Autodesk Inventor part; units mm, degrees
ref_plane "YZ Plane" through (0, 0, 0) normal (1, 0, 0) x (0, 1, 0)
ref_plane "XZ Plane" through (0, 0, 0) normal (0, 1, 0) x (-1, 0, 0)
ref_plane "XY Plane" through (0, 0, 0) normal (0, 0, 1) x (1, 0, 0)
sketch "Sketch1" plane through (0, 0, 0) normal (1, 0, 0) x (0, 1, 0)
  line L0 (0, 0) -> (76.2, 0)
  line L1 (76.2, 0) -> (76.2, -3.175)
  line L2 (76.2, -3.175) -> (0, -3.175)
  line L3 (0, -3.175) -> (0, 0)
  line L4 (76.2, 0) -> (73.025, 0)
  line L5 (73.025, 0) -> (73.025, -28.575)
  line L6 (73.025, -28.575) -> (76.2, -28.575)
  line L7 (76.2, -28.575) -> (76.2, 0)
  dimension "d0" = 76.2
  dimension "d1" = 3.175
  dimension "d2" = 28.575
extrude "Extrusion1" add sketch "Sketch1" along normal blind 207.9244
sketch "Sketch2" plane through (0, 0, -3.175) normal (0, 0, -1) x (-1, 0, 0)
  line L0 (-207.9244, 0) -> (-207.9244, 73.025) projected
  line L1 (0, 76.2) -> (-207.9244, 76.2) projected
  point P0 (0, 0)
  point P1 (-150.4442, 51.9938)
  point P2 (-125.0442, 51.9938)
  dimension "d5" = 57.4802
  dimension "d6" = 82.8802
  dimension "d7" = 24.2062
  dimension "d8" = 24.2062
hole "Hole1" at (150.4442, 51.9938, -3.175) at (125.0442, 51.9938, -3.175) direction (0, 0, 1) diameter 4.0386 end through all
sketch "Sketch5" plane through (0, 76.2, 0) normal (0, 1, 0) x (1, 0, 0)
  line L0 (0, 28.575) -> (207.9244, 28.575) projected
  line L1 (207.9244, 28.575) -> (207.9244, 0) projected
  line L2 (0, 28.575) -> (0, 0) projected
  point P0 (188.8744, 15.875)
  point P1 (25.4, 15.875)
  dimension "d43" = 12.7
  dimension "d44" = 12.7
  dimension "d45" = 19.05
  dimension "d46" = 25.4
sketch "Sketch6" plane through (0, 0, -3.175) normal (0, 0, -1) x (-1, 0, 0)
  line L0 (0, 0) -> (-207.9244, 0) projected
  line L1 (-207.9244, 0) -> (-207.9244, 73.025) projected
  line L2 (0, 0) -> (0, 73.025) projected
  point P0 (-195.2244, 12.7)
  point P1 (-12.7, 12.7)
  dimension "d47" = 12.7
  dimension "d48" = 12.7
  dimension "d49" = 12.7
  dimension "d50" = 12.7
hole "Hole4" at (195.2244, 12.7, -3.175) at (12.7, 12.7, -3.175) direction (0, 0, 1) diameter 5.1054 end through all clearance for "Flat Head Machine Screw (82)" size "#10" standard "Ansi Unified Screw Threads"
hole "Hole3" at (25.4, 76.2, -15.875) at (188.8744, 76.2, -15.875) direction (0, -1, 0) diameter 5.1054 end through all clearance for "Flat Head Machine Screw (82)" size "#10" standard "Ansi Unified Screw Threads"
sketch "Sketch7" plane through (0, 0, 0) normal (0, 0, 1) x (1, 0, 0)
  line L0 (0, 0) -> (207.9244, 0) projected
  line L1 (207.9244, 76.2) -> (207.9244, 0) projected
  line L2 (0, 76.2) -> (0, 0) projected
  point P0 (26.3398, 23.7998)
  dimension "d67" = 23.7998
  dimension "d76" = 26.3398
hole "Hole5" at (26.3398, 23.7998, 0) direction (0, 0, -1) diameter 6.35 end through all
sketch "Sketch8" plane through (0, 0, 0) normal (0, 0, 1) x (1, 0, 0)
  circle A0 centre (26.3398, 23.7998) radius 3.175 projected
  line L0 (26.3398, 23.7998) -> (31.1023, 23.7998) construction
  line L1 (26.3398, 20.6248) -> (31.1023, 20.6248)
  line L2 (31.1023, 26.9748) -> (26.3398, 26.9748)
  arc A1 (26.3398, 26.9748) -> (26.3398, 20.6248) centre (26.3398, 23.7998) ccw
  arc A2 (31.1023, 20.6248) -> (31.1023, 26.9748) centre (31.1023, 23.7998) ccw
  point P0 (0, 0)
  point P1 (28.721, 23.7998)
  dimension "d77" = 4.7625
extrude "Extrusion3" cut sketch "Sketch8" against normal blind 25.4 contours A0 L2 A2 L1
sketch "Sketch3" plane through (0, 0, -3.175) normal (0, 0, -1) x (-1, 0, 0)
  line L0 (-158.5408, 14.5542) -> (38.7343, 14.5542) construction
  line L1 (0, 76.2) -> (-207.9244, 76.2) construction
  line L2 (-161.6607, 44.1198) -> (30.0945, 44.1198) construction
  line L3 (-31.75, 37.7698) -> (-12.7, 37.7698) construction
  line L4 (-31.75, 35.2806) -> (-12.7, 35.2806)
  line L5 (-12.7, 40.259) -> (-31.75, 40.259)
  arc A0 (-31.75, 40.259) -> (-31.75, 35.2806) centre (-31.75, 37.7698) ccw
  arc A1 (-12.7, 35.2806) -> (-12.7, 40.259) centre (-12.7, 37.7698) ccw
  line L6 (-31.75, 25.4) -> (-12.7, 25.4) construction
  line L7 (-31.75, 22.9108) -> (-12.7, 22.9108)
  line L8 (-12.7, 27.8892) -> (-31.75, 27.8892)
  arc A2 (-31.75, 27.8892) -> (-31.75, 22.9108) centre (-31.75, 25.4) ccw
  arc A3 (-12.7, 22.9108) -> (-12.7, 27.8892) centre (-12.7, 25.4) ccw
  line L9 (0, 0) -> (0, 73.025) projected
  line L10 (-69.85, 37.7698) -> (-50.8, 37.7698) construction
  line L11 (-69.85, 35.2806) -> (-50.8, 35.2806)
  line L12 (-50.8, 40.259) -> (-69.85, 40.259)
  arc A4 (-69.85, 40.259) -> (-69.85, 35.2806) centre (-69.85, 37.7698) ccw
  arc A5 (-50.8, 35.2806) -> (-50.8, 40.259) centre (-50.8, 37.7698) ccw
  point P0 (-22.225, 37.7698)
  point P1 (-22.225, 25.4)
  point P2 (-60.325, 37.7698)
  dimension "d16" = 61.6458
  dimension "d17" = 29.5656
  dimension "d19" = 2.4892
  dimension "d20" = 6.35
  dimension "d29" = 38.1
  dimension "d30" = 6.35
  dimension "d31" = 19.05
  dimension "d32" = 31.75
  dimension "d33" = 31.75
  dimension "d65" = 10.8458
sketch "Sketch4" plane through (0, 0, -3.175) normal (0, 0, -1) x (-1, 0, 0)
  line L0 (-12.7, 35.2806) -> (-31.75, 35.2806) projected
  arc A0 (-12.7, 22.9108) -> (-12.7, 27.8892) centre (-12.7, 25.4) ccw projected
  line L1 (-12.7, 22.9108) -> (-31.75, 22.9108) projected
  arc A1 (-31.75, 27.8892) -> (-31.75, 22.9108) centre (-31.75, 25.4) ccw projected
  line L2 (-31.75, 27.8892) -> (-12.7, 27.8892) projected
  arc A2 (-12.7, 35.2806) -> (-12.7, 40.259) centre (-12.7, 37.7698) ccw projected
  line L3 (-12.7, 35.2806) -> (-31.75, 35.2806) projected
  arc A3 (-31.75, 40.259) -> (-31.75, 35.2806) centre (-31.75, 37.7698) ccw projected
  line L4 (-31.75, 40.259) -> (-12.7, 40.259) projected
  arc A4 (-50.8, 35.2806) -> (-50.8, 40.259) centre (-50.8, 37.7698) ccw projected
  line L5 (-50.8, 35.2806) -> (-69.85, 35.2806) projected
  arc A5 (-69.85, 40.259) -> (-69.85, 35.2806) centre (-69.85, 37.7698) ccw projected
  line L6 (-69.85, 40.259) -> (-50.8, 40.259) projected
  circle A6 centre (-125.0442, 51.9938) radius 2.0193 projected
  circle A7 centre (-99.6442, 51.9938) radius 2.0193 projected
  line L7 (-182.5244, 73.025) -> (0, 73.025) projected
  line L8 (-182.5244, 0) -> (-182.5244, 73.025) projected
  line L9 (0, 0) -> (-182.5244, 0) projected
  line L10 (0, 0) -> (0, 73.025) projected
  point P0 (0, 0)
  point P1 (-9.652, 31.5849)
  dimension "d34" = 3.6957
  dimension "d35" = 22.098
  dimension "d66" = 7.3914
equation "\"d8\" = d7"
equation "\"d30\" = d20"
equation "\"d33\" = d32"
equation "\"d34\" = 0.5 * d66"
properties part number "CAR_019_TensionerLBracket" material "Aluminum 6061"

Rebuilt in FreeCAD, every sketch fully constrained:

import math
import FreeCAD as App
import Part
import Sketcher
Q = App.Units.Quantity


def add_polygon(sketch, points):
    """Adds a closed chain of lines whose ends are joined by coincident constraints."""
    first, n = sketch.GeometryCount, len(points)
    for a, b in zip(points, points[1:] + points[:1]):
        sketch.addGeometry(Part.LineSegment(App.Vector(*a, 0), App.Vector(*b, 0)), False)
    for i in range(n):
        sketch.addConstraint(Sketcher.Constraint("Coincident", first + i, 2, first + (i + 1) % n, 1))

doc = App.newDocument("Part")
params = doc.addObject("Spreadsheet::Sheet", "Params")
for row, (alias, value) in enumerate([
    ("sketch1_width", "3 in"),
    ("sketch1_width2", "0.125 in"),
    ("sketch1_height", "1 in"),
    ("pad1_length", "8.186 in"),
    ("sketch2_diameter", "0.159 in"),
    ("hole_diameter", "0.159 in"),
    ("sketch3_diameter", "0.201 in"),
    ("hole2_diameter", "0.201 in"),
    ("sketch4_diameter", "0.201 in"),
    ("hole3_diameter", "0.201 in"),
    ("sketch5_diameter", "0.25 in"),
    ("hole4_diameter", "0.25 in"),
    ("sketch6_width", "0.1875 in"),
    ("sketch6_radius", "0.125 in"),
    ("pocket1_length", "1 in"),
], start=1):
    params.set(f"A{row}", alias)
    params.set(f"B{row}", "=" + value)
    params.setAlias(f"B{row}", alias)

body = doc.addObject("PartDesign::Body", "Body")

sketch1 = body.newObject("Sketcher::SketchObject", "Sketch")
sketch1.AttachmentSupport = (doc.getObject("YZ_Plane"), [""])
sketch1.MapMode = "FlatFace"
add_polygon(sketch1, [(0, 0), (0, -3.2), (73, -3.2), (73, -28.6), (76.2, -28.6), (76.2, 0)])
sketch1.addConstraint(Sketcher.Constraint("Vertical", 0))
sketch1.addConstraint(Sketcher.Constraint("Horizontal", 1))
sketch1.addConstraint(Sketcher.Constraint("Vertical", 2))
sketch1.addConstraint(Sketcher.Constraint("Horizontal", 3))
sketch1.addConstraint(Sketcher.Constraint("Vertical", 4))
sketch1.addConstraint(Sketcher.Constraint("Horizontal", 5))
sketch1.addConstraint(Sketcher.Constraint("Coincident", 5, 2, -1, 1))
sketch1.addConstraint(Sketcher.Constraint("Equal", 3, 0))
sketch1.addConstraint(Sketcher.Constraint("DistanceX", 5, 2, 5, 1, Q("3 in")))
sketch1.addConstraint(Sketcher.Constraint("DistanceX", 3, 1, 3, 2, Q("0.125 in")))
sketch1.addConstraint(Sketcher.Constraint("DistanceY", 2, 2, 2, 1, Q("1 in")))
sketch1.setExpression("Constraints[14]", "Params.sketch1_width")
sketch1.setExpression("Constraints[15]", "Params.sketch1_width2")
sketch1.setExpression("Constraints[16]", "Params.sketch1_height")
pad1 = body.newObject("PartDesign::Pad", "Pad")
pad1.Profile = sketch1
pad1.setExpression("Length", "Params.pad1_length")

sketch2 = body.newObject("Sketcher::SketchObject", "Sketch001")
sketch2.AttachmentSupport = (doc.getObject("XY_Plane"), [""])
sketch2.MapMode = "FlatFace"
sketch2.AttachmentOffset = App.Placement(App.Vector(0, 0, -0.125 * 25.4), App.Rotation())
sketch2.addGeometry(Part.Circle(App.Vector(150.4, 52, 0), App.Vector(0, 0, 1), 2), False)
sketch2.addGeometry(Part.Circle(App.Vector(125, 52, 0), App.Vector(0, 0, 1), 2), False)
sketch2.addConstraint(Sketcher.Constraint("Equal", 0, 1))
sketch2.addConstraint(Sketcher.Constraint("Horizontal", 0, 3, 1, 3))
sketch2.addConstraint(Sketcher.Constraint("Diameter", 0, Q("0.159 in")))
sketch2.addConstraint(Sketcher.Constraint("DistanceX", 1, 3, 0, 3, Q("1 in")))
sketch2.addConstraint(Sketcher.Constraint("DistanceX", -1, 1, 0, 3, Q("5.923 in")))
sketch2.addConstraint(Sketcher.Constraint("DistanceY", -1, 1, 0, 3, Q("2.047 in")))
sketch2.setExpression("Constraints[2]", "Params.sketch2_diameter")
doc.recompute()
hole = body.newObject("PartDesign::Hole", "Hole")
hole.Profile = sketch2
hole.ThreadType = "None"
hole.setExpression("Diameter", "Params.hole_diameter")
hole.DepthType = "ThroughAll"
hole.Reversed = True

sketch3 = body.newObject("Sketcher::SketchObject", "Sketch002")
sketch3.AttachmentSupport = (doc.getObject("XY_Plane"), [""])
sketch3.MapMode = "FlatFace"
sketch3.AttachmentOffset = App.Placement(App.Vector(0, 0, -0.125 * 25.4), App.Rotation())
sketch3.addGeometry(Part.Circle(App.Vector(195.2, 12.7, 0), App.Vector(0, 0, 1), 2.6), False)
sketch3.addGeometry(Part.Circle(App.Vector(12.7, 12.7, 0), App.Vector(0, 0, 1), 2.6), False)
sketch3.addConstraint(Sketcher.Constraint("Equal", 0, 1))
sketch3.addConstraint(Sketcher.Constraint("Horizontal", 0, 3, 1, 3))
sketch3.addConstraint(Sketcher.Constraint("Diameter", 0, Q("0.201 in")))
sketch3.addConstraint(Sketcher.Constraint("DistanceY", -1, 1, 0, 3, Q("0.5 in")))
sketch3.addConstraint(Sketcher.Constraint("DistanceX", -1, 1, 1, 3, Q("0.5 in")))
sketch3.addConstraint(Sketcher.Constraint("DistanceX", -1, 1, 0, 3, Q("7.686 in")))
sketch3.setExpression("Constraints[2]", "Params.sketch3_diameter")
doc.recompute()
hole2 = body.newObject("PartDesign::Hole", "Hole001")
hole2.Profile = sketch3
hole2.ThreadType = "None"
hole2.setExpression("Diameter", "Params.hole2_diameter")
hole2.DepthType = "ThroughAll"
hole2.Reversed = True

sketch4 = body.newObject("Sketcher::SketchObject", "Sketch003")
sketch4.AttachmentSupport = (doc.getObject("XZ_Plane"), [""])
sketch4.MapMode = "FlatFace"
sketch4.AttachmentOffset = App.Placement(App.Vector(0, 0, -3 * 25.4), App.Rotation())
sketch4.addGeometry(Part.Circle(App.Vector(25.4, -15.9, 0), App.Vector(0, 0, 1), 2.6), False)
sketch4.addGeometry(Part.Circle(App.Vector(188.9, -15.9, 0), App.Vector(0, 0, 1), 2.6), False)
sketch4.addConstraint(Sketcher.Constraint("Equal", 0, 1))
sketch4.addConstraint(Sketcher.Constraint("Horizontal", 0, 3, 1, 3))
sketch4.addConstraint(Sketcher.Constraint("Diameter", 0, Q("0.201 in")))
sketch4.addConstraint(Sketcher.Constraint("DistanceX", -1, 1, 0, 3, Q("1 in")))
sketch4.addConstraint(Sketcher.Constraint("DistanceY", 0, 3, -1, 1, Q("0.625 in")))
sketch4.addConstraint(Sketcher.Constraint("DistanceX", -1, 1, 1, 3, Q("7.436 in")))
sketch4.setExpression("Constraints[2]", "Params.sketch4_diameter")
doc.recompute()
hole3 = body.newObject("PartDesign::Hole", "Hole002")
hole3.Profile = sketch4
hole3.ThreadType = "None"
hole3.setExpression("Diameter", "Params.hole3_diameter")
hole3.DepthType = "ThroughAll"
hole3.Reversed = True

sketch5 = body.newObject("Sketcher::SketchObject", "Sketch004")
sketch5.AttachmentSupport = (doc.getObject("XY_Plane"), [""])
sketch5.MapMode = "FlatFace"
sketch5.addGeometry(Part.Circle(App.Vector(26.3, 23.8, 0), App.Vector(0, 0, 1), 3.2), False)
sketch5.addConstraint(Sketcher.Constraint("Diameter", 0, Q("0.25 in")))
sketch5.addConstraint(Sketcher.Constraint("DistanceX", -1, 1, 0, 3, Q("1.037 in")))
sketch5.addConstraint(Sketcher.Constraint("DistanceY", -1, 1, 0, 3, Q("0.937 in")))
sketch5.setExpression("Constraints[0]", "Params.sketch5_diameter")
doc.recompute()
hole4 = body.newObject("PartDesign::Hole", "Hole003")
hole4.Profile = sketch5
hole4.ThreadType = "None"
hole4.setExpression("Diameter", "Params.hole4_diameter")
hole4.DepthType = "ThroughAll"

sketch6 = body.newObject("Sketcher::SketchObject", "Sketch005")
sketch6.AttachmentSupport = (doc.getObject("XY_Plane"), [""])
sketch6.MapMode = "FlatFace"
sketch6.addGeometry(Part.ArcOfCircle(Part.Circle(App.Vector(26.3, 23.8, 0), App.Vector(0, 0, 1), 3.2), math.radians(-90), math.radians(90)), False)
sketch6.addGeometry(Part.LineSegment(App.Vector(26.3, 20.6, 0), App.Vector(31.1, 20.6, 0)), False)
sketch6.addGeometry(Part.ArcOfCircle(Part.Circle(App.Vector(31.1, 23.8, 0), App.Vector(0, 0, 1), 3.2), math.radians(-90), math.radians(90)), False)
sketch6.addGeometry(Part.LineSegment(App.Vector(31.1, 27, 0), App.Vector(26.3, 27, 0)), False)
sketch6.addConstraint(Sketcher.Constraint("Tangent", 0, 1, 1, 1))
sketch6.addConstraint(Sketcher.Constraint("Tangent", 1, 2, 2, 1))
sketch6.addConstraint(Sketcher.Constraint("Tangent", 2, 2, 3, 1))
sketch6.addConstraint(Sketcher.Constraint("Tangent", 3, 2, 0, 2))
sketch6.addConstraint(Sketcher.Constraint("Horizontal", 1))
sketch6.addConstraint(Sketcher.Constraint("Horizontal", 3))
sketch6.addConstraint(Sketcher.Constraint("DistanceX", 1, 1, 1, 2, Q("0.1875 in")))
sketch6.addConstraint(Sketcher.Constraint("Radius", 0, Q("0.125 in")))
sketch6.addConstraint(Sketcher.Constraint("DistanceX", -1, 1, 0, 3, Q("1.037 in")))
sketch6.addConstraint(Sketcher.Constraint("DistanceY", -1, 1, 0, 3, Q("0.937 in")))
sketch6.setExpression("Constraints[6]", "Params.sketch6_width")
sketch6.setExpression("Constraints[7]", "Params.sketch6_radius")
pocket1 = body.newObject("PartDesign::Pocket", "Pocket")
pocket1.Profile = sketch6
pocket1.setExpression("Length", "Params.pocket1_length")

doc.recompute()
